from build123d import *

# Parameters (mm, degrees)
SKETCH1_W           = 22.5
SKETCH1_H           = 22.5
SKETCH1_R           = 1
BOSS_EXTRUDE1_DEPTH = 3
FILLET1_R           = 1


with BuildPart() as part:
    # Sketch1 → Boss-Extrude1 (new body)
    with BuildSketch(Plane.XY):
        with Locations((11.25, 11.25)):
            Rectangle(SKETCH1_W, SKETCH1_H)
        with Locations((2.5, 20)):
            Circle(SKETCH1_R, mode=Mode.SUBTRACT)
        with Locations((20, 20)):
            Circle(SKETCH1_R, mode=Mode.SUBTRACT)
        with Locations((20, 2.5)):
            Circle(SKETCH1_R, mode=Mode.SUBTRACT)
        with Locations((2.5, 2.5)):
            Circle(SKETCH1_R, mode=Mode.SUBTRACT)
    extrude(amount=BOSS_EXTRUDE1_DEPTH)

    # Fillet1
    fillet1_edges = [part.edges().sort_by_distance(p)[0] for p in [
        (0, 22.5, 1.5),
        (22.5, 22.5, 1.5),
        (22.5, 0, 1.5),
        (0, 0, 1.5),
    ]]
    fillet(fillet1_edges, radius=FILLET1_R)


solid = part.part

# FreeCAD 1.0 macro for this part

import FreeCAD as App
import Part
import Sketcher
Q = App.Units.Quantity


def edges_at(feature, points):
    """Names of the edges that pass closest to the given points."""
    edges = feature.Shape.Edges
    near = lambda p: min(range(len(edges)), key=lambda i: edges[i].distToShape(Part.Vertex(*p))[0])
    return sorted({f"Edge{near(p) + 1}" for p in points})

doc = App.newDocument("Part")
body = doc.addObject("PartDesign::Body", "Body")

# Sketch on XY plane
sketch1 = body.newObject("Sketcher::SketchObject", "Sketch")
sketch1.AttachmentSupport = (doc.getObject("XY_Plane"), [""])
sketch1.MapMode = "FlatFace"
sketch1.addGeometry([
    Part.LineSegment(App.Vector(0, 22.5, 0), App.Vector(0, 0, 0)),  # 0
    Part.LineSegment(App.Vector(0, 0, 0), App.Vector(22.5, 0, 0)),  # 1
    Part.LineSegment(App.Vector(22.5, 0, 0), App.Vector(22.5, 22.5, 0)),  # 2
    Part.LineSegment(App.Vector(22.5, 22.5, 0), App.Vector(0, 22.5, 0)),  # 3
    Part.Circle(App.Vector(2.5, 2.5, 0), App.Vector(0, 0, 1), 1),  # 4
    Part.Circle(App.Vector(20, 2.5, 0), App.Vector(0, 0, 1), 1),  # 5
    Part.Circle(App.Vector(2.5, 20, 0), App.Vector(0, 0, 1), 1),  # 6
    Part.Circle(App.Vector(20, 20, 0), App.Vector(0, 0, 1), 1),  # 7
], False)
sketch1.addConstraint([
    Sketcher.Constraint("Coincident", 0, 2, 1, 1),
    Sketcher.Constraint("Coincident", 1, 2, 2, 1),
    Sketcher.Constraint("Coincident", 2, 2, 3, 1),
    Sketcher.Constraint("Coincident", 3, 2, 0, 1),
    Sketcher.Constraint("Vertical", 0),
    Sketcher.Constraint("Horizontal", 1),
    Sketcher.Constraint("Vertical", 2),
    Sketcher.Constraint("Horizontal", 3),
    Sketcher.Constraint("Coincident", 0, 2, -1, 1),
    Sketcher.Constraint("Equal", 4, 5),
    Sketcher.Constraint("Equal", 5, 6),
    Sketcher.Constraint("Equal", 6, 7),
    Sketcher.Constraint("Horizontal", 4, 3, 5, 3),
    Sketcher.Constraint("Horizontal", 6, 3, 7, 3),
    Sketcher.Constraint("Vertical", 4, 3, 6, 3),
    Sketcher.Constraint("Vertical", 5, 3, 7, 3),
    Sketcher.Constraint("Equal", 3, 0),
    Sketcher.Constraint("Diameter", 4, Q("2 mm")),
    Sketcher.Constraint("DistanceX", 1, 1, 1, 2, Q("22.5 mm")),
    Sketcher.Constraint("DistanceX", -1, 1, 5, 3, Q("20 mm")),
    Sketcher.Constraint("DistanceY", -1, 1, 6, 3, Q("20 mm")),
    Sketcher.Constraint("DistanceX", 4, 3, 1, 2, Q("20 mm")),
    Sketcher.Constraint("DistanceY", 5, 3, 2, 2, Q("20 mm")),
])
pad1 = body.newObject("PartDesign::Pad", "Pad")
pad1.Profile = sketch1
pad1.Length = 3
doc.recompute()

fillet = body.newObject("PartDesign::Fillet", "Fillet")
fillet.Base = (pad1, edges_at(pad1, [
    (0, 22.5, 1.5),
    (22.5, 22.5, 1.5),
    (22.5, 0, 1.5),
    (0, 0, 1.5),
]))
fillet.Radius = 1

doc.recompute()
